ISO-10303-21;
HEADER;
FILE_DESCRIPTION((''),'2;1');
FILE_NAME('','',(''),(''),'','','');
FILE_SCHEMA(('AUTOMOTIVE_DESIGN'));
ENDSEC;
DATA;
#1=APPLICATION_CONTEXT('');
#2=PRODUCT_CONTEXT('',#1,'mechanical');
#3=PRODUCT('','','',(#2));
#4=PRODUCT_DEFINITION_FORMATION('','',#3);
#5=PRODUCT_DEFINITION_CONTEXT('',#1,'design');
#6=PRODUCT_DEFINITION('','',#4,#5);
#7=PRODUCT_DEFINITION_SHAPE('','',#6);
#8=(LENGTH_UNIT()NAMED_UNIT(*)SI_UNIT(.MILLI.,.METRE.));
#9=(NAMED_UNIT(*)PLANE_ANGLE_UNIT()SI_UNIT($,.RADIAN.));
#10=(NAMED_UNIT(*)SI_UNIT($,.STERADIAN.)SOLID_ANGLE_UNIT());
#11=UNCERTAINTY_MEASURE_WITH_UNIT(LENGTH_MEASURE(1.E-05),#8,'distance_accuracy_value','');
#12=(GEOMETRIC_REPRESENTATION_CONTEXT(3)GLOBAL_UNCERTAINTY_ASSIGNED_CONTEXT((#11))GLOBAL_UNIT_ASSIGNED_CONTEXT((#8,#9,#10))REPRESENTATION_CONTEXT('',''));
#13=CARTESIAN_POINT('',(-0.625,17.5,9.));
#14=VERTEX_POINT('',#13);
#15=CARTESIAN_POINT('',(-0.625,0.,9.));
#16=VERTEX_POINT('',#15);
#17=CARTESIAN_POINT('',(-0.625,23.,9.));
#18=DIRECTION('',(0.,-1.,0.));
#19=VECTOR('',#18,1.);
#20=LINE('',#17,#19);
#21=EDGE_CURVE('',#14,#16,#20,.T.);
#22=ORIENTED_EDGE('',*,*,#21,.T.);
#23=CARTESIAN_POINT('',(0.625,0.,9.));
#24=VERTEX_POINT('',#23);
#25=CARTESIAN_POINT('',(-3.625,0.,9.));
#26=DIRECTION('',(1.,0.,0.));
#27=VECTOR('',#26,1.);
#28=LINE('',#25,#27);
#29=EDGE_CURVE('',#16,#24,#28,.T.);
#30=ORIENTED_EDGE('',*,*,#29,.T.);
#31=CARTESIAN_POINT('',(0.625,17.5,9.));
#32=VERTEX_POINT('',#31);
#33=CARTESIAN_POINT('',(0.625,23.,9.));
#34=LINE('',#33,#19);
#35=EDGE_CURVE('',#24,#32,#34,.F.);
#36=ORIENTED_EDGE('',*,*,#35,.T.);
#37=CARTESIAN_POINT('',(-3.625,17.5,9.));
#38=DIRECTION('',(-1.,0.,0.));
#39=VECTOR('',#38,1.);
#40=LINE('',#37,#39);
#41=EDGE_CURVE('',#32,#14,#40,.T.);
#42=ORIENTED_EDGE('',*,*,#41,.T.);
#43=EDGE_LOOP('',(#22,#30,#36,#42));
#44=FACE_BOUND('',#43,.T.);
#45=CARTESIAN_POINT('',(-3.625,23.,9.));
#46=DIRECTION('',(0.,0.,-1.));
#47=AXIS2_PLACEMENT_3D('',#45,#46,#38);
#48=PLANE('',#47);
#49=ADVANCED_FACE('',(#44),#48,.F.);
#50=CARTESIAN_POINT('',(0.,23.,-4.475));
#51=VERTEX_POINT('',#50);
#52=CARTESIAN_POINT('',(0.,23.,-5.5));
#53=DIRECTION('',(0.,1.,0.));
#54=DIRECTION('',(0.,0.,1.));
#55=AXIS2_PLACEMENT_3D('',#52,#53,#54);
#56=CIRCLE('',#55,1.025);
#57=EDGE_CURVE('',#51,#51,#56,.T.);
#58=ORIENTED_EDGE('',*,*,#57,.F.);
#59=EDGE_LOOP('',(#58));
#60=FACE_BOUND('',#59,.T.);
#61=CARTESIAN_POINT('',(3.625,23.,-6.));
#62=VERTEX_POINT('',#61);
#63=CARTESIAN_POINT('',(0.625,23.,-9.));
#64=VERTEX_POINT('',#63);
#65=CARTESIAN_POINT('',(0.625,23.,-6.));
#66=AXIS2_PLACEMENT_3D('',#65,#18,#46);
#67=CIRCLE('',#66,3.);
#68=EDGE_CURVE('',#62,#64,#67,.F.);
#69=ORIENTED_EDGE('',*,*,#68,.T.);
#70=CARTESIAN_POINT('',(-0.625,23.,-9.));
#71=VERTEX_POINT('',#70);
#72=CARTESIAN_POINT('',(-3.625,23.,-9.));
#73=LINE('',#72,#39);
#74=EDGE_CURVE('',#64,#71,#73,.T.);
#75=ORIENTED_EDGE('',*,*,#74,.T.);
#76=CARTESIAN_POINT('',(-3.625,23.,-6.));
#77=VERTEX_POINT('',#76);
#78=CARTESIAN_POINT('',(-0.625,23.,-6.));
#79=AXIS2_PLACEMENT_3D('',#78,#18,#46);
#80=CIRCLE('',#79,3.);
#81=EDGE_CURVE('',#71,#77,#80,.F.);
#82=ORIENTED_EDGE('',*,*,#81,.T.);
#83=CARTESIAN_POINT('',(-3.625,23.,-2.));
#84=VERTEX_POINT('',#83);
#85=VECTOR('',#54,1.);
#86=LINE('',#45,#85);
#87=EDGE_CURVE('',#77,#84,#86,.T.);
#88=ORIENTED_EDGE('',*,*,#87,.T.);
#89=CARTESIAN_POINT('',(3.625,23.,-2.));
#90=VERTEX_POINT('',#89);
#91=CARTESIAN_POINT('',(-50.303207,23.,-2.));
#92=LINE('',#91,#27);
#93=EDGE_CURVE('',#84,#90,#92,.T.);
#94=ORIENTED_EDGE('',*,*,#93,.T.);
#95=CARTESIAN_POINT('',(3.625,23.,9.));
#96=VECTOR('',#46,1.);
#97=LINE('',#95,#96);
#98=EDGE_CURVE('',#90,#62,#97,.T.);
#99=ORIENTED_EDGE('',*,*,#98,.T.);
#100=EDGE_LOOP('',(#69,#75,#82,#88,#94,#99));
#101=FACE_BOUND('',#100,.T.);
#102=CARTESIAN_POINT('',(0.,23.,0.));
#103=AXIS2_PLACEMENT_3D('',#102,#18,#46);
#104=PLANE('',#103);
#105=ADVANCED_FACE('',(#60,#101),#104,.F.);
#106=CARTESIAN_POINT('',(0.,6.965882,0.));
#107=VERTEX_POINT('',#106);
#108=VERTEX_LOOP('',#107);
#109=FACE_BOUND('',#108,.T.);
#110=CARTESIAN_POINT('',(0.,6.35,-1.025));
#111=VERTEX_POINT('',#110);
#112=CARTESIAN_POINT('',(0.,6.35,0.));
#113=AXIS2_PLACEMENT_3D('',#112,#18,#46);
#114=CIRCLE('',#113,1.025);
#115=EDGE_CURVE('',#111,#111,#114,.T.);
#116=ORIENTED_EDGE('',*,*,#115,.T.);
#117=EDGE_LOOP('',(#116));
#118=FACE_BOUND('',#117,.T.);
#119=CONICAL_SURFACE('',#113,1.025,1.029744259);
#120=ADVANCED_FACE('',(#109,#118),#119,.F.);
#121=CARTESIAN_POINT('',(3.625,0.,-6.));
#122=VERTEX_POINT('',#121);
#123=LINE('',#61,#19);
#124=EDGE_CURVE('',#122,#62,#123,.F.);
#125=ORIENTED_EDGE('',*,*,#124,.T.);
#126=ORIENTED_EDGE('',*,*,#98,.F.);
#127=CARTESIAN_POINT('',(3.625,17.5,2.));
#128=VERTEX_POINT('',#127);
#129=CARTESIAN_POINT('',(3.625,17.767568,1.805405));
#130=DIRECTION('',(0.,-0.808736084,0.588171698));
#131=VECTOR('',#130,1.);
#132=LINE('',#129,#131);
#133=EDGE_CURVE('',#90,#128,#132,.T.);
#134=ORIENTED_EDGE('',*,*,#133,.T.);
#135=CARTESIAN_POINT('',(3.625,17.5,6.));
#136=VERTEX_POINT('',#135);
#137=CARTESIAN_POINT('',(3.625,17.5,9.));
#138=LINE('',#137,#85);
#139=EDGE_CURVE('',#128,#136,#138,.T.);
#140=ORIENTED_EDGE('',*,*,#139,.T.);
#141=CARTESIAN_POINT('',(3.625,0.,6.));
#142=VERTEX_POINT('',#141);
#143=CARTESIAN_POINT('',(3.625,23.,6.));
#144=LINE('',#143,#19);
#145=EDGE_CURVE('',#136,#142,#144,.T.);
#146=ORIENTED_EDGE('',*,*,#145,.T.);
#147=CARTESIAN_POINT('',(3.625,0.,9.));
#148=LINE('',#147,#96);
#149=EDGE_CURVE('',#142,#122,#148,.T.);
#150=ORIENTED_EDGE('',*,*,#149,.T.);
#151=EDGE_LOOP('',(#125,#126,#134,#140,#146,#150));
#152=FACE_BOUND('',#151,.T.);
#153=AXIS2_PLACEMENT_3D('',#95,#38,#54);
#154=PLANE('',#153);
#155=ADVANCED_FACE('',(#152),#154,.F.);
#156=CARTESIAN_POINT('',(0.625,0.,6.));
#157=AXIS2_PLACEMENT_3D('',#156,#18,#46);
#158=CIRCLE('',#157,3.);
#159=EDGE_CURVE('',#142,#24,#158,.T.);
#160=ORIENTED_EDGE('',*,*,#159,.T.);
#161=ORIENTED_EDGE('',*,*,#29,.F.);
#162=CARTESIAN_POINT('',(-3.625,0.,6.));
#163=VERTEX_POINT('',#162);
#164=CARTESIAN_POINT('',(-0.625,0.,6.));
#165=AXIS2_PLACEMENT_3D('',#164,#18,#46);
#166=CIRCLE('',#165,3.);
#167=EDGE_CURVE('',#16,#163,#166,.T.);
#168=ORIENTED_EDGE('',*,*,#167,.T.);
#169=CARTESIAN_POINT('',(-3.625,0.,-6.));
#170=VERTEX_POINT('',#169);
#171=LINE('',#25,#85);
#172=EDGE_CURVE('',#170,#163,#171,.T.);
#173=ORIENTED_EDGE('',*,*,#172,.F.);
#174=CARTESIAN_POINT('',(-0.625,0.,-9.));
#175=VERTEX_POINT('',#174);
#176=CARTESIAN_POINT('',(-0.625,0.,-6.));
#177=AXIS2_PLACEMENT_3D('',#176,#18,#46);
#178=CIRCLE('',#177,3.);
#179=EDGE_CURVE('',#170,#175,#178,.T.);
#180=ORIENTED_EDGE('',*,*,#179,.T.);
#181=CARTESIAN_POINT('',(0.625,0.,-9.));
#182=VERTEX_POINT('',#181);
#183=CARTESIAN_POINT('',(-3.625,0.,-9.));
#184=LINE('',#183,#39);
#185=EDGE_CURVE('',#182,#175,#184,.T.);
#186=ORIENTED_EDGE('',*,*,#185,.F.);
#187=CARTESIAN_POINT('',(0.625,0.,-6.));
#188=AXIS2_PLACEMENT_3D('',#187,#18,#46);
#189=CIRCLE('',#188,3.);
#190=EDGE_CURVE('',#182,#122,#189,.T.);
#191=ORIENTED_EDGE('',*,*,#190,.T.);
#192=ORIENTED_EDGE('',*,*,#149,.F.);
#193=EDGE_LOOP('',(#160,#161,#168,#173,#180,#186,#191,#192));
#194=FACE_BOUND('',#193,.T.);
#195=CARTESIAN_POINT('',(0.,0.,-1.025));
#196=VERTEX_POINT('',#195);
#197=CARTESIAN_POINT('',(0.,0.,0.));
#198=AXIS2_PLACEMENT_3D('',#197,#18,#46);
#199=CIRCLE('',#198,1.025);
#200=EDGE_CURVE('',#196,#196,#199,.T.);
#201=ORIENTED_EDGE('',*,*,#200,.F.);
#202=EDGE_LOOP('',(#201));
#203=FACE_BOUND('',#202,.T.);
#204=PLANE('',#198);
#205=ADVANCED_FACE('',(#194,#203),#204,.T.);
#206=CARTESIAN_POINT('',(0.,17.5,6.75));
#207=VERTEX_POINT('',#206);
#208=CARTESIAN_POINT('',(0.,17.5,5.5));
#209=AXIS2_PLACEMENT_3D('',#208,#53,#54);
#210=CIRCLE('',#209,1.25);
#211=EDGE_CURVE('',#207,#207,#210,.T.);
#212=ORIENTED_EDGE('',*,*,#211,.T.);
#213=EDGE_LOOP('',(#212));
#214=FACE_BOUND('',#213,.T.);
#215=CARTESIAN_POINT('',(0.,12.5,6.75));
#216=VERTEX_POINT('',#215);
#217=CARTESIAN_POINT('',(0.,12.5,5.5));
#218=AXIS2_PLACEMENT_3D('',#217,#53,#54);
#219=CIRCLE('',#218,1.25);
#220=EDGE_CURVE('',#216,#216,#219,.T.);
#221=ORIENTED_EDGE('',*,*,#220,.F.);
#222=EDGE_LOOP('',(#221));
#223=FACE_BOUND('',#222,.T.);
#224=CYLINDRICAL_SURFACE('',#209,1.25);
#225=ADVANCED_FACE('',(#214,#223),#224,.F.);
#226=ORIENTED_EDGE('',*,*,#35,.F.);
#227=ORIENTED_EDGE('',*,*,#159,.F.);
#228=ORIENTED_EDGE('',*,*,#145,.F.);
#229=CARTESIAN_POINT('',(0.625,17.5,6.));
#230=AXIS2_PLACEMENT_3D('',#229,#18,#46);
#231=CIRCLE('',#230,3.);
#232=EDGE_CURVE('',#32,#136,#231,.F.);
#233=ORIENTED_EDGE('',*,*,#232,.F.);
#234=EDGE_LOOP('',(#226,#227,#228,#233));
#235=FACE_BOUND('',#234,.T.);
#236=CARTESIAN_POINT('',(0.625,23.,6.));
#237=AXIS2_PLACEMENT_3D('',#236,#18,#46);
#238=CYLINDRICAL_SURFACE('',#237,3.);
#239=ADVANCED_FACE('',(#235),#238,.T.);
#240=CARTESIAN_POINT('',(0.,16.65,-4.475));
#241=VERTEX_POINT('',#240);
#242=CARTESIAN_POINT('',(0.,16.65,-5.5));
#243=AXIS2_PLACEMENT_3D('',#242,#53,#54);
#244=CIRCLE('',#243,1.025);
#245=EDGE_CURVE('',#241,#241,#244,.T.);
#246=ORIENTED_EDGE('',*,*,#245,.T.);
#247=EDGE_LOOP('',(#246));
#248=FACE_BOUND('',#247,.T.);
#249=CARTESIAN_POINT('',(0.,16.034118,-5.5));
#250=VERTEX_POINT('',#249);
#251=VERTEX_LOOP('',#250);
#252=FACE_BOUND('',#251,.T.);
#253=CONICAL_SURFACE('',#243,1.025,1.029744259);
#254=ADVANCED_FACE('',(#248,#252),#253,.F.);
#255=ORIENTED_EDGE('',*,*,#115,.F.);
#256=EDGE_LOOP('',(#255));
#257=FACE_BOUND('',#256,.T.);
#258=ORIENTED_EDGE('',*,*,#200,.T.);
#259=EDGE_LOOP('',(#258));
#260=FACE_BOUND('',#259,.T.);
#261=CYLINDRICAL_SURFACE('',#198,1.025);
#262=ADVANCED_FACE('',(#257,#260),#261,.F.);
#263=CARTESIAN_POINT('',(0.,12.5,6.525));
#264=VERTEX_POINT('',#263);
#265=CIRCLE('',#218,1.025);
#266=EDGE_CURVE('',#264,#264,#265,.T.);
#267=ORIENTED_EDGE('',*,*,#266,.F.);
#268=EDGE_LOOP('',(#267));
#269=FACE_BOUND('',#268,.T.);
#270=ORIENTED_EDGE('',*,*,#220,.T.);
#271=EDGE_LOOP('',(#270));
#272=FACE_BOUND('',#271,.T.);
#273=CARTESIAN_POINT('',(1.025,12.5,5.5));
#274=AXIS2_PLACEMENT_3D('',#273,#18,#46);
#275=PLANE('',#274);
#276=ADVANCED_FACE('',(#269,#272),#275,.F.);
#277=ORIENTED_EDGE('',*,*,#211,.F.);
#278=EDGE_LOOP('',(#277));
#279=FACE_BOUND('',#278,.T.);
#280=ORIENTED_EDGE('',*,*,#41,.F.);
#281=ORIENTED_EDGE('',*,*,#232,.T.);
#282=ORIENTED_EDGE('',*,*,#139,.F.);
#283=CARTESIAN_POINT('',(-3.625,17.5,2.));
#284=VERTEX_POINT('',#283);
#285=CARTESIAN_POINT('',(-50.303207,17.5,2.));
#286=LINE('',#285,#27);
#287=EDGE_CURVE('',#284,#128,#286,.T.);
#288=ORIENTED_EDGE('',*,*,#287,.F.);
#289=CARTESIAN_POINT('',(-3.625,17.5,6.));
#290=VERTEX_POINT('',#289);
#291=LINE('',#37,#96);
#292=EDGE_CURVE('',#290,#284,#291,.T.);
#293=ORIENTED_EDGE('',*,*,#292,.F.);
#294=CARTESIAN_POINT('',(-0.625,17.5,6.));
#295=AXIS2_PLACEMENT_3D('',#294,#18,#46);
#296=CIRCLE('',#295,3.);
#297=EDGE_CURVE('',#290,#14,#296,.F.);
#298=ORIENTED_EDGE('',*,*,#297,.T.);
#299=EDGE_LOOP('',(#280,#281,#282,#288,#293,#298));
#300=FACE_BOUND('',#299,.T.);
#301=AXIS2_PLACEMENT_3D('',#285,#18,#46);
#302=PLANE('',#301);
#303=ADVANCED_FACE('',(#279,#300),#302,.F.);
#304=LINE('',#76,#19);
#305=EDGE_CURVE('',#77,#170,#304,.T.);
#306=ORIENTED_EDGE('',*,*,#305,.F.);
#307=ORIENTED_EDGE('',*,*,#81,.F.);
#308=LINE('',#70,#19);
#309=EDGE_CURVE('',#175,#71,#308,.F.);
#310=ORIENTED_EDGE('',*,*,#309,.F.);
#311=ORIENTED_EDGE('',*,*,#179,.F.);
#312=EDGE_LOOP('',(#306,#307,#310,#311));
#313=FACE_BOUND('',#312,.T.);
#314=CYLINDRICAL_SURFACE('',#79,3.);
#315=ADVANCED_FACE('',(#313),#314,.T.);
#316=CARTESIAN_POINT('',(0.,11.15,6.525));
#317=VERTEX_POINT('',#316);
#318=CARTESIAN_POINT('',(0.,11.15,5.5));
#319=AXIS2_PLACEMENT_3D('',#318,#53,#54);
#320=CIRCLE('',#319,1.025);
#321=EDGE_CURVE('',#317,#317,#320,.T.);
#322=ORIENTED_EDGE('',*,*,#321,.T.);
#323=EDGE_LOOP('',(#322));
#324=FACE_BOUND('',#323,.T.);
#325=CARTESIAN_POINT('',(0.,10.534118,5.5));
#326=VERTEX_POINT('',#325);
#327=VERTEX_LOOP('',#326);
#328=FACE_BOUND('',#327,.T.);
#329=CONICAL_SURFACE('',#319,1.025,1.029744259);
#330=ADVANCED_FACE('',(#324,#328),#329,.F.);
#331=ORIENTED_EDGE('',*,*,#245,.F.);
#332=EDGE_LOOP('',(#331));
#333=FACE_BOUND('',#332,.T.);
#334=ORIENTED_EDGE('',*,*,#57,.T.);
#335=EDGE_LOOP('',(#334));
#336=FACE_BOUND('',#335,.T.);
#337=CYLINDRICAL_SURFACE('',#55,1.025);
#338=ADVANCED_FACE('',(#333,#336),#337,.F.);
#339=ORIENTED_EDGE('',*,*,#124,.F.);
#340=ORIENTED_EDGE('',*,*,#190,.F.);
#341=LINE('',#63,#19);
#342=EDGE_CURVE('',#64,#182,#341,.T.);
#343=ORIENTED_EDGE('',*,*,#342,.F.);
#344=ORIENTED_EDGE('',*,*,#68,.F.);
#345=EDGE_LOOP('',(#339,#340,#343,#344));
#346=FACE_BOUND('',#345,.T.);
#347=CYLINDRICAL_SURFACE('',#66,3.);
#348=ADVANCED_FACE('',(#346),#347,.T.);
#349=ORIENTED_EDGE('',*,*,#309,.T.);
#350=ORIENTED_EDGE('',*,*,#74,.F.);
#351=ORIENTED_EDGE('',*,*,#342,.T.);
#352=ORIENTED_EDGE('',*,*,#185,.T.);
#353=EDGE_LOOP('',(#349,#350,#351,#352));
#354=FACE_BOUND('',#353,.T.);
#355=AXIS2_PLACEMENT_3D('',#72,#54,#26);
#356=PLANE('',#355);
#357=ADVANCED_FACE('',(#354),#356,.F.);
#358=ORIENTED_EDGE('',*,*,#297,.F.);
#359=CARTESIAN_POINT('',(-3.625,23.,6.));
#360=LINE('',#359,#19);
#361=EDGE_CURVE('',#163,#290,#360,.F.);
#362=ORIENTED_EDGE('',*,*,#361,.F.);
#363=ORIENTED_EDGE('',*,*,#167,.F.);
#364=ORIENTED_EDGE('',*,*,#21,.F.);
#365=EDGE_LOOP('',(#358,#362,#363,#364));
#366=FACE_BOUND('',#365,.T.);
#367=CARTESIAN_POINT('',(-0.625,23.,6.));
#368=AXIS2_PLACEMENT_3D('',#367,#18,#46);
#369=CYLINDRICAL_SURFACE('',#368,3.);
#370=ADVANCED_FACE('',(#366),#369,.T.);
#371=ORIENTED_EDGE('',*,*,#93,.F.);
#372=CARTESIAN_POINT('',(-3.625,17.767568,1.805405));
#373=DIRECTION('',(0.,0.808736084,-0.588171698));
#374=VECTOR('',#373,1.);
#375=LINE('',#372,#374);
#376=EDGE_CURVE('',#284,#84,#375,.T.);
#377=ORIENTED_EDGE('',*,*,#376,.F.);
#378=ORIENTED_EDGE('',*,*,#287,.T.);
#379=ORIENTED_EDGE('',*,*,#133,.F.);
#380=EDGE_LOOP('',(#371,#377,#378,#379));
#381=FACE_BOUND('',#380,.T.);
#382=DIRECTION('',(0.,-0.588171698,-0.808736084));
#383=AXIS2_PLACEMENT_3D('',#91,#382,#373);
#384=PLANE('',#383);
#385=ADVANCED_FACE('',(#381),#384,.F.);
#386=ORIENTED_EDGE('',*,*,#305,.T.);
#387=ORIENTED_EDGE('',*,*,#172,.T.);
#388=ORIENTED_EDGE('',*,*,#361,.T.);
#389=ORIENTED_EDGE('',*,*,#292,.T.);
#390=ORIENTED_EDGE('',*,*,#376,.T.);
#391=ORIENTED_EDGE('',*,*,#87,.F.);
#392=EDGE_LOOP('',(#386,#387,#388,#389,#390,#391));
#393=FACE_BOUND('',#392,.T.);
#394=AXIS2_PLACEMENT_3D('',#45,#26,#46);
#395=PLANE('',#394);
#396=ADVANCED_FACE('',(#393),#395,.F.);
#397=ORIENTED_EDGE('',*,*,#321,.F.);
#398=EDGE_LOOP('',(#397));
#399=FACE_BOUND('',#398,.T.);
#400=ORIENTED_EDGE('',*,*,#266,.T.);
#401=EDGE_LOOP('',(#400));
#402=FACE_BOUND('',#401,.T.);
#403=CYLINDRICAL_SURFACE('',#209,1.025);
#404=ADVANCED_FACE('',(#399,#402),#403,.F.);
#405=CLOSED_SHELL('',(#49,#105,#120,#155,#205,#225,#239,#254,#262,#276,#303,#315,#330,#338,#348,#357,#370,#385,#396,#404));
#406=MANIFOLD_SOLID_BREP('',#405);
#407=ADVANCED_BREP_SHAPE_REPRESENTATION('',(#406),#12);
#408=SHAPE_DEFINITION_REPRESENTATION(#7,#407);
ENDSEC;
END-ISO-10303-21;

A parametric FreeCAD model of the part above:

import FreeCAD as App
import Part
import Sketcher

V = App.Vector


def edges_at(feature, points):
    """Names of the edges that pass closest to the given points."""
    edges = feature.Shape.Edges
    near = lambda p: min(range(len(edges)), key=lambda i: edges[i].distToShape(Part.Vertex(*p))[0])
    return sorted({f"Edge{near(p) + 1}" for p in points})


def add_polygon(sketch, points):
    """Adds a closed chain of lines whose ends are joined by coincident constraints."""
    first, n = sketch.GeometryCount, len(points)
    for a, b in zip(points, points[1:] + points[:1]):
        sketch.addGeometry(Part.LineSegment(App.Vector(*a, 0), App.Vector(*b, 0)), False)
    for i in range(n):
        sketch.addConstraint(Sketcher.Constraint("Coincident", first + i, 2, first + (i + 1) % n, 1))

doc = App.newDocument("Part")
body = doc.addObject("PartDesign::Body", "Body")

sketch1 = doc.addObject("Sketcher::SketchObject", "Sketch")
body.addObject(sketch1)
sketch1.AttachmentSupport = (doc.XZ_Plane, [""])
sketch1.MapMode = "FlatFace"
add_polygon(sketch1, [(-3.625, -9), (-3.625, 9), (3.625, 9), (3.625, -9)])
sketch1.addConstraint([
    Sketcher.Constraint("Vertical", 0),
    Sketcher.Constraint("Horizontal", 1),
    Sketcher.Constraint("Vertical", 2),
    Sketcher.Constraint("Horizontal", 3),
    Sketcher.Constraint("Symmetric", 0, 2, 2, 2, -1, 1),
    Sketcher.Constraint("DistanceY", 0, 1, 0, 2, 18.0),
    Sketcher.Constraint("DistanceX", 1, 1, 1, 2, 7.25),
])
pad1 = doc.addObject("PartDesign::Pad", "Pad")
body.addObject(pad1)
pad1.Profile = sketch1
pad1.Length = 23
pad1.Reversed = True

sketch2 = doc.addObject("Sketcher::SketchObject", "Sketch001")
body.addObject(sketch2)
sketch2.AttachmentSupport = (doc.YZ_Plane, [""])
sketch2.MapMode = "FlatFace"
sketch2.AttachmentOffset = App.Placement(V(0, 0, -3.625), App.Rotation())
add_polygon(sketch2, [(23, -77.412327), (23, -2), (17.5, 2), (17.5, 77.412327), (154.238403, 82.26983), (159.738403, -72.554825)])
sketch2.addConstraint([
    Sketcher.Constraint("Vertical", 0),
    Sketcher.Constraint("Vertical", 2),
    Sketcher.Constraint("Perpendicular", 3, 4),
    Sketcher.Constraint("Perpendicular", 4, 5),
    Sketcher.Constraint("Equal", 0, 2),
    Sketcher.Constraint("Equal", 3, 5),
    Sketcher.Constraint("DistanceX", -1, 1, 0, 2, 23.0),
    Sketcher.Constraint("DistanceY", 0, 2, -1, 1, 2.0),
    Sketcher.Constraint("DistanceY", -1, 1, 1, 2, 2.0),
    Sketcher.Constraint("DistanceX", -1, 1, 1, 2, 17.5),
    Sketcher.Constraint("DistanceY", 0, 1, 0, 2, 75.412327),
    Sketcher.Constraint("DistanceY", -1, 1, 3, 2, 82.26983),
])
pocket1 = doc.addObject("PartDesign::Pocket", "Pocket")
body.addObject(pocket1)
pocket1.Profile = sketch2
pocket1.Type = "ThroughAll"
pocket1.Midplane = True

sketch3 = doc.addObject("Sketcher::SketchObject", "Sketch002")
body.addObject(sketch3)
sketch3.AttachmentSupport = (doc.XZ_Plane, [""])
sketch3.MapMode = "FlatFace"
sketch3.addGeometry(Part.Circle(V(0, 0, 0), V(0, 0, 1), 1.025), False)
sketch3.addConstraint([
    Sketcher.Constraint("Coincident", 0, 3, -1, 1),
    Sketcher.Constraint("Diameter", 0, 2.05),
])
doc.recompute()
hole = doc.addObject("PartDesign::Hole", "Hole")
body.addObject(hole)
hole.Profile = sketch3
hole.ThreadType = "None"
hole.Diameter = 2.05
hole.DepthType = "Dimension"
hole.Depth = 6.35
hole.DrillPoint = "Angled"
hole.DrillPointAngle = 118

sketch4 = doc.addObject("Sketcher::SketchObject", "Sketch003")
body.addObject(sketch4)
sketch4.AttachmentSupport = (doc.XZ_Plane, [""])
sketch4.MapMode = "FlatFace"
sketch4.AttachmentOffset = App.Placement(V(0, 0, -23), App.Rotation())
sketch4.addGeometry(Part.Circle(V(0, -5.5, 0), V(0, 0, 1), 1.025), False)
sketch4.addConstraint([
    Sketcher.Constraint("PointOnObject", 0, 3, -2),
    Sketcher.Constraint("Diameter", 0, 2.05),
    Sketcher.Constraint("DistanceY", 0, 3, -1, 1, 5.5),
])
doc.recompute()
hole2 = doc.addObject("PartDesign::Hole", "Hole001")
body.addObject(hole2)
hole2.Profile = sketch4
hole2.ThreadType = "None"
hole2.Diameter = 2.05
hole2.DepthType = "Dimension"
hole2.Depth = 6.35
hole2.DrillPoint = "Angled"
hole2.DrillPointAngle = 118
hole2.Reversed = True

sketch5 = doc.addObject("Sketcher::SketchObject", "Sketch004")
body.addObject(sketch5)
sketch5.AttachmentSupport = (doc.XZ_Plane, [""])
sketch5.MapMode = "FlatFace"
sketch5.AttachmentOffset = App.Placement(V(0, 0, -17.5), App.Rotation())
sketch5.addGeometry(Part.Circle(V(0, 5.5, 0), V(0, 0, 1), 1.025), False)
sketch5.addConstraint([
    Sketcher.Constraint("PointOnObject", 0, 3, -2),
    Sketcher.Constraint("Diameter", 0, 2.05),
    Sketcher.Constraint("DistanceY", -1, 1, 0, 3, 5.5),
])
doc.recompute()
hole3 = doc.addObject("PartDesign::Hole", "Hole002")
body.addObject(hole3)
hole3.Profile = sketch5
hole3.ThreadType = "None"
hole3.Diameter = 2.05
hole3.DepthType = "Dimension"
hole3.Depth = 6.35
hole3.DrillPoint = "Angled"
hole3.DrillPointAngle = 118
hole3.HoleCutType = "Counterbore"
hole3.HoleCutDiameter = 2.5
hole3.HoleCutDepth = 5
hole3.Reversed = True
doc.recompute()

fillet = doc.addObject("PartDesign::Fillet", "Fillet")
body.addObject(fillet)
fillet.Base = (hole3, edges_at(hole3, [
    (3.625, 8.75, 9),
    (-3.625, 8.75, 9),
    (-3.625, 11.5, -9),
    (3.625, 11.5, -9),
]))
fillet.Radius = 3

doc.recompute()
